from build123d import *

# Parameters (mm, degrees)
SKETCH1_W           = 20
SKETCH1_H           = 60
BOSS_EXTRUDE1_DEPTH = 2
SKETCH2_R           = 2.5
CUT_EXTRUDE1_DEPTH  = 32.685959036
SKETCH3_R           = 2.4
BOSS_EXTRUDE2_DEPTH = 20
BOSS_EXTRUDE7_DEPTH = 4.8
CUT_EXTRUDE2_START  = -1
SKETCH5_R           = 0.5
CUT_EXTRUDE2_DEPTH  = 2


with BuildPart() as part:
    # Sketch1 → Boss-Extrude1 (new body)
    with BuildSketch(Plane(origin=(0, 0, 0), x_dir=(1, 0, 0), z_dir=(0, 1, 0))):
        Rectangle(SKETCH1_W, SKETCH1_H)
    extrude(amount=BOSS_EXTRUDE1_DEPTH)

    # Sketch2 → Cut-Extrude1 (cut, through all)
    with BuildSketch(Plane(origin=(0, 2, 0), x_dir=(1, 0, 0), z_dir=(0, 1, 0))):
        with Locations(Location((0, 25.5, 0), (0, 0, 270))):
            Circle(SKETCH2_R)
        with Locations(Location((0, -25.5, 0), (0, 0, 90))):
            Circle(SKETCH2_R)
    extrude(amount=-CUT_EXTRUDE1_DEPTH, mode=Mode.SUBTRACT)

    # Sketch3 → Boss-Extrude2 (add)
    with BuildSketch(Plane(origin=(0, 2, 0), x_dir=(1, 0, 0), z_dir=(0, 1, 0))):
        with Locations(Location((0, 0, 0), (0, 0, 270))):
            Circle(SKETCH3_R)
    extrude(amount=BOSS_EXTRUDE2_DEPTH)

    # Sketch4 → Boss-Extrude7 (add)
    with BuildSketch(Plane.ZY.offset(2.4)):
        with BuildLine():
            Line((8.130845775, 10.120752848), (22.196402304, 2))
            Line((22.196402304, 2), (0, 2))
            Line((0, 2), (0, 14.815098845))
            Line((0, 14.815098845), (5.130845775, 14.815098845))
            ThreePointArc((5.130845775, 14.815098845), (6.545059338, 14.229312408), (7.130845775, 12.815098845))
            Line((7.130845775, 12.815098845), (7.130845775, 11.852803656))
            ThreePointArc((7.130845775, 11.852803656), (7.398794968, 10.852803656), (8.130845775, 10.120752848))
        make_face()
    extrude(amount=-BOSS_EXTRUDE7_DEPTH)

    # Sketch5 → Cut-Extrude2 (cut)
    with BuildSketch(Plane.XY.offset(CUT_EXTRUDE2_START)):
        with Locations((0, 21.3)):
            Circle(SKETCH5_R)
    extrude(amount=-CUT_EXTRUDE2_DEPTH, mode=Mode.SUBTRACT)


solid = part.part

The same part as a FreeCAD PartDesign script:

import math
import FreeCAD as App
import Part
import Sketcher
from FreeCAD import Vector
Q = App.Units.Quantity

doc = App.newDocument("Part")
body = doc.addObject("PartDesign::Body", "Body")

# Sketch on XZ plane
sketch1 = doc.addObject("Sketcher::SketchObject", "Sketch")
body.addObject(sketch1)
sketch1.AttachmentSupport = (doc.XZ_Plane, [""])
sketch1.MapMode = "FlatFace"
sketch1.addGeometry(Part.LineSegment(Vector(-10, -30, 0), Vector(-10, 30, 0)), False)
sketch1.addGeometry(Part.LineSegment(Vector(-10, 30, 0), Vector(10, 30, 0)), False)
sketch1.addGeometry(Part.LineSegment(Vector(10, 30, 0), Vector(10, -30, 0)), False)
sketch1.addGeometry(Part.LineSegment(Vector(10, -30, 0), Vector(-10, -30, 0)), False)
sketch1.addConstraint(Sketcher.Constraint("Coincident", 0, 2, 1, 1))
sketch1.addConstraint(Sketcher.Constraint("Coincident", 1, 2, 2, 1))
sketch1.addConstraint(Sketcher.Constraint("Coincident", 2, 2, 3, 1))
sketch1.addConstraint(Sketcher.Constraint("Coincident", 3, 2, 0, 1))
sketch1.addConstraint(Sketcher.Constraint("Vertical", 0))
sketch1.addConstraint(Sketcher.Constraint("Horizontal", 1))
sketch1.addConstraint(Sketcher.Constraint("Vertical", 2))
sketch1.addConstraint(Sketcher.Constraint("Horizontal", 3))
sketch1.addConstraint(Sketcher.Constraint("Symmetric", 0, 2, 2, 2, -1, 1))
sketch1.addConstraint(Sketcher.Constraint("DistanceX", 1, 1, 1, 2, Q("20 mm")))
sketch1.addConstraint(Sketcher.Constraint("DistanceY", 0, 1, 0, 2, Q("60 mm")))
pad1 = doc.addObject("PartDesign::Pad", "Pad")
body.addObject(pad1)
pad1.Profile = sketch1
pad1.Length = 2
pad1.Reversed = True

# Sketch on XZ plane
sketch2 = doc.addObject("Sketcher::SketchObject", "Sketch001")
body.addObject(sketch2)
sketch2.AttachmentSupport = (doc.XZ_Plane, [""])
sketch2.MapMode = "FlatFace"
sketch2.AttachmentOffset = App.Placement(Vector(0, 0, -2), App.Rotation())
sketch2.addGeometry(Part.Circle(Vector(0, -25.5, 0), Vector(0, 0, 1), 2.5), False)
sketch2.addGeometry(Part.Circle(Vector(0, 25.5, 0), Vector(0, 0, 1), 2.5), False)
sketch2.addConstraint(Sketcher.Constraint("Equal", 0, 1))
sketch2.addConstraint(Sketcher.Constraint("Symmetric", 0, 3, 1, 3, -1, 1))
sketch2.addConstraint(Sketcher.Constraint("PointOnObject", 0, 3, -2))
sketch2.addConstraint(Sketcher.Constraint("Diameter", 0, Q("5 mm")))
sketch2.addConstraint(Sketcher.Constraint("DistanceY", 0, 3, 1, 3, Q("51 mm")))
pocket1 = doc.addObject("PartDesign::Pocket", "Pocket")
body.addObject(pocket1)
pocket1.Profile = sketch2
pocket1.Type = "ThroughAll"
pocket1.Reversed = True

# Sketch on XZ plane
sketch3 = doc.addObject("Sketcher::SketchObject", "Sketch002")
body.addObject(sketch3)
sketch3.AttachmentSupport = (doc.XZ_Plane, [""])
sketch3.MapMode = "FlatFace"
sketch3.AttachmentOffset = App.Placement(Vector(0, 0, -2), App.Rotation())
sketch3.addGeometry(Part.Circle(Vector(0, 0, 0), Vector(0, 0, 1), 2.4), False)
sketch3.addConstraint(Sketcher.Constraint("Coincident", 0, 3, -1, 1))
sketch3.addConstraint(Sketcher.Constraint("Diameter", 0, Q("4.8 mm")))
pad2 = doc.addObject("PartDesign::Pad", "Pad001")
body.addObject(pad2)
pad2.Profile = sketch3
pad2.Length = 20
pad2.Reversed = True

# Sketch on YZ plane
sketch4 = doc.addObject("Sketcher::SketchObject", "Sketch003")
body.addObject(sketch4)
sketch4.AttachmentSupport = (doc.YZ_Plane, [""])
sketch4.MapMode = "FlatFace"
sketch4.AttachmentOffset = App.Placement(Vector(0, 0, -2.4), App.Rotation())
sketch4.addGeometry(Part.LineSegment(Vector(2, 22.2, 0), Vector(10.1, 8.1, 0)), False)
sketch4.addGeometry(Part.ArcOfCircle(Part.Circle(Vector(11.9, 9.1, 0), Vector(0, 0, 1), 2), math.radians(-150), math.radians(-90)), False)
sketch4.addGeometry(Part.LineSegment(Vector(11.9, 7.1, 0), Vector(12.8, 7.1, 0)), False)
sketch4.addGeometry(Part.ArcOfCircle(Part.Circle(Vector(12.8, 5.1, 0), Vector(0, 0, 1), 2), math.radians(0), math.radians(90)), False)
sketch4.addGeometry(Part.LineSegment(Vector(14.8, 5.1, 0), Vector(14.8, 0, 0)), False)
sketch4.addGeometry(Part.LineSegment(Vector(14.8, 0, 0), Vector(2, 0, 0)), False)
sketch4.addGeometry(Part.LineSegment(Vector(2, 0, 0), Vector(2, 22.2, 0)), False)
sketch4.addConstraint(Sketcher.Constraint("Tangent", 0, 2, 1, 1))
sketch4.addConstraint(Sketcher.Constraint("Tangent", 1, 2, 2, 1))
sketch4.addConstraint(Sketcher.Constraint("Tangent", 2, 2, 3, 2))
sketch4.addConstraint(Sketcher.Constraint("Tangent", 3, 1, 4, 1))
sketch4.addConstraint(Sketcher.Constraint("Coincident", 4, 2, 5, 1))
sketch4.addConstraint(Sketcher.Constraint("Coincident", 5, 2, 6, 1))
sketch4.addConstraint(Sketcher.Constraint("Coincident", 6, 2, 0, 1))
sketch4.addConstraint(Sketcher.Constraint("Horizontal", 2))
sketch4.addConstraint(Sketcher.Constraint("Vertical", 4))
sketch4.addConstraint(Sketcher.Constraint("Horizontal", 5))
sketch4.addConstraint(Sketcher.Constraint("Vertical", 6))
sketch4.addConstraint(Sketcher.Constraint("Equal", 1, 3))
sketch4.addConstraint(Sketcher.Constraint("PointOnObject", 4, 2, -1))
sketch4.addConstraint(Sketcher.Constraint("Radius", 1, Q("2 mm")))
sketch4.addConstraint(Sketcher.Constraint("Angle", 0, Q("-60 deg")))
sketch4.addConstraint(Sketcher.Constraint("DistanceX", -1, 1, 5, 2, Q("2 mm")))
sketch4.addConstraint(Sketcher.Constraint("DistanceX", 5, 2, 5, 1, Q("12.815099 mm")))
sketch4.addConstraint(Sketcher.Constraint("DistanceX", 2, 1, 2, 2, Q("0.962295 mm")))
sketch4.addConstraint(Sketcher.Constraint("DistanceY", 4, 2, 4, 1, Q("5.130846 mm")))
pad3 = doc.addObject("PartDesign::Pad", "Pad002")
body.addObject(pad3)
pad3.Profile = sketch4
pad3.Length = 4.8

# Sketch on XY plane
sketch5 = doc.addObject("Sketcher::SketchObject", "Sketch004")
body.addObject(sketch5)
sketch5.AttachmentSupport = (doc.XY_Plane, [""])
sketch5.MapMode = "FlatFace"
sketch5.AttachmentOffset = App.Placement(Vector(0, 0, -1), App.Rotation())
sketch5.addGeometry(Part.Circle(Vector(0, 21.3, 0), Vector(0, 0, 1), 0.5), False)
sketch5.addConstraint(Sketcher.Constraint("PointOnObject", 0, 3, -2))
sketch5.addConstraint(Sketcher.Constraint("Diameter", 0, Q("1 mm")))
sketch5.addConstraint(Sketcher.Constraint("DistanceY", -1, 1, 0, 3, Q("21.3 mm")))
pocket2 = doc.addObject("PartDesign::Pocket", "Pocket001")
body.addObject(pocket2)
pocket2.Profile = sketch5
pocket2.Length = 2

doc.recompute()
